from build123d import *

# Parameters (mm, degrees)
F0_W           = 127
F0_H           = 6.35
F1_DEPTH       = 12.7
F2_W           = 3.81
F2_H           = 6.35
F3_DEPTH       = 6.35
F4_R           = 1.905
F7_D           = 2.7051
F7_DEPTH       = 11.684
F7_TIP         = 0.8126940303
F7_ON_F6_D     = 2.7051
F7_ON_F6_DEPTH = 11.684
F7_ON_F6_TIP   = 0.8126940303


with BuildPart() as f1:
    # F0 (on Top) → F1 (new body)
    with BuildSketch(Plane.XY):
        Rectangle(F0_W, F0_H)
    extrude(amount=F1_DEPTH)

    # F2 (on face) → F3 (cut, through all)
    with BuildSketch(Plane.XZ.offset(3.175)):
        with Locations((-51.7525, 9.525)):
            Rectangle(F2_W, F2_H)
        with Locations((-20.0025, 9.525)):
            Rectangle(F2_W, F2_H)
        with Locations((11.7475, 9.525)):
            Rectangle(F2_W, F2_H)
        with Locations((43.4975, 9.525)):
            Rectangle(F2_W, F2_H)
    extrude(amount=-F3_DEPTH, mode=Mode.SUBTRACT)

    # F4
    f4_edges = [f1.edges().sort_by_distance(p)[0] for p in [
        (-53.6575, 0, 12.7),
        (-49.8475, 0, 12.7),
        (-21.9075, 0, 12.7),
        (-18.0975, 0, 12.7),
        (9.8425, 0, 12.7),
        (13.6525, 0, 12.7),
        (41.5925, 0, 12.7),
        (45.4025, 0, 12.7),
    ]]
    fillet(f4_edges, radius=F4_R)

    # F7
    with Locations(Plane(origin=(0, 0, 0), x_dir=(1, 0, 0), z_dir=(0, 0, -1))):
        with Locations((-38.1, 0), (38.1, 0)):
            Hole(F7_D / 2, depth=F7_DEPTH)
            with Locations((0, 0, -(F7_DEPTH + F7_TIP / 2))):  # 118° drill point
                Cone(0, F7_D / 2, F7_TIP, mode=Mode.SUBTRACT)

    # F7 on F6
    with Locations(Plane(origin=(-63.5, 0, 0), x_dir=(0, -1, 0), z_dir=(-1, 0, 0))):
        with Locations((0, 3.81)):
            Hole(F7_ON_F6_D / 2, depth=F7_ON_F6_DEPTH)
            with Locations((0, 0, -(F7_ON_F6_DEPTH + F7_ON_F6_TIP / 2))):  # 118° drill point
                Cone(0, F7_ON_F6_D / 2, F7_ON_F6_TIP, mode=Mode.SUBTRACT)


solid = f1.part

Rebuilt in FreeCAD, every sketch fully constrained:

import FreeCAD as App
import Part
import Sketcher

V = App.Vector
Q = App.Units.Quantity


def edges_at(feature, points):
    """Names of the edges that pass closest to the given points."""
    edges = feature.Shape.Edges
    near = lambda p: min(range(len(edges)), key=lambda i: edges[i].distToShape(Part.Vertex(*p))[0])
    return sorted({f"Edge{near(p) + 1}" for p in points})


def add_polygon(sketch, points):
    """Adds a closed chain of lines whose ends are joined by coincident constraints."""
    first, n = sketch.GeometryCount, len(points)
    for a, b in zip(points, points[1:] + points[:1]):
        sketch.addGeometry(Part.LineSegment(App.Vector(*a, 0), App.Vector(*b, 0)), False)
    for i in range(n):
        sketch.addConstraint(Sketcher.Constraint("Coincident", first + i, 2, first + (i + 1) % n, 1))

doc = App.newDocument("Part")
body = doc.addObject("PartDesign::Body", "Body")

# Sketch on XY plane
sketch1 = body.newObject("Sketcher::SketchObject", "Sketch")
sketch1.AttachmentSupport = (doc.getObject("XY_Plane"), [""])
sketch1.MapMode = "FlatFace"
add_polygon(sketch1, [(-63.5, 3.175), (-63.5, -3.175), (63.5, -3.175), (63.5, 3.175)])  # lines 0-3
sketch1.addConstraint([
    Sketcher.Constraint("Vertical", 0),
    Sketcher.Constraint("Horizontal", 1),
    Sketcher.Constraint("Vertical", 2),
    Sketcher.Constraint("Horizontal", 3),
    Sketcher.Constraint("Symmetric", 0, 2, 2, 2, -1, 1),
    Sketcher.Constraint("DistanceX", 1, 1, 1, 2, Q("5 in")),
    Sketcher.Constraint("DistanceY", 0, 2, 0, 1, Q("0.25 in")),
])
pad1 = body.newObject("PartDesign::Pad", "Pad")
pad1.Profile = sketch1
pad1.Length = Q("0.5 in")

# Sketch on XZ plane
sketch2 = body.newObject("Sketcher::SketchObject", "Sketch001")
sketch2.AttachmentSupport = (doc.getObject("XZ_Plane"), [""])
sketch2.MapMode = "FlatFace"
sketch2.AttachmentOffset = App.Placement(V(0, 0, 0.125 * 25.4), App.Rotation())
add_polygon(sketch2, [(-53.6575, 12.7), (-53.6575, 6.35), (-49.8475, 6.35), (-49.8475, 12.7)])  # lines 0-3
add_polygon(sketch2, [(-21.9075, 12.7), (-21.9075, 6.35), (-18.0975, 6.35), (-18.0975, 12.7)])  # lines 4-7
add_polygon(sketch2, [(9.8425, 12.7), (9.8425, 6.35), (13.6525, 6.35), (13.6525, 12.7)])  # lines 8-11
add_polygon(sketch2, [(41.5925, 12.7), (41.5925, 6.35), (45.4025, 6.35), (45.4025, 12.7)])  # lines 12-15
sketch2.addConstraint([
    Sketcher.Constraint("Vertical", 0),
    Sketcher.Constraint("Horizontal", 1),
    Sketcher.Constraint("Vertical", 2),
    Sketcher.Constraint("Horizontal", 3),
    Sketcher.Constraint("Vertical", 4),
    Sketcher.Constraint("Horizontal", 5),
    Sketcher.Constraint("Vertical", 6),
    Sketcher.Constraint("Horizontal", 7),
    Sketcher.Constraint("Vertical", 8),
    Sketcher.Constraint("Horizontal", 9),
    Sketcher.Constraint("Vertical", 10),
    Sketcher.Constraint("Horizontal", 11),
    Sketcher.Constraint("Vertical", 12),
    Sketcher.Constraint("Horizontal", 13),
    Sketcher.Constraint("Vertical", 14),
    Sketcher.Constraint("Horizontal", 15),
    Sketcher.Constraint("Horizontal", 1, 2, 4, 2),
    Sketcher.Constraint("Horizontal", 3, 2, 6, 2),
    Sketcher.Constraint("Horizontal", 5, 2, 8, 2),
    Sketcher.Constraint("Horizontal", 7, 2, 10, 2),
    Sketcher.Constraint("Horizontal", 9, 2, 12, 2),
    Sketcher.Constraint("Horizontal", 11, 2, 14, 2),
    Sketcher.Constraint("Equal", 3, 5),
    Sketcher.Constraint("Equal", 7, 9),
    Sketcher.Constraint("Equal", 11, 13),
    Sketcher.Constraint("DistanceX", 1, 1, 1, 2, Q("0.15 in")),
    Sketcher.Constraint("DistanceY", 0, 2, 0, 1, Q("0.25 in")),
    Sketcher.Constraint("DistanceY", -1, 1, 2, 2, Q("0.5 in")),
    Sketcher.Constraint("DistanceX", 1, 2, 4, 2, Q("1.1 in")),
    Sketcher.Constraint("DistanceX", 5, 2, 8, 2, Q("1.1 in")),
    Sketcher.Constraint("DistanceX", 9, 2, 12, 2, Q("1.1 in")),
    Sketcher.Constraint("DistanceX", 0, 2, -1, 1, Q("2.1125 in")),
])
pocket1 = body.newObject("PartDesign::Pocket", "Pocket")
pocket1.Profile = sketch2
pocket1.Type = "ThroughAll"
doc.recompute()

fillet = body.newObject("PartDesign::Fillet", "Fillet")
fillet.Base = (pocket1, edges_at(pocket1, [
    (-53.657, 0, 12.7),
    (-49.847, 0, 12.7),
    (-21.907, 0, 12.7),
    (-18.098, 0, 12.7),
    (9.842, 0, 12.7),
    (13.652, 0, 12.7),
    (41.593, 0, 12.7),
    (45.403, 0, 12.7),
]))
fillet.Radius = Q("0.075 in")

# Sketch on XY plane
sketch3 = body.newObject("Sketcher::SketchObject", "Sketch002")
sketch3.AttachmentSupport = (doc.getObject("XY_Plane"), [""])
sketch3.MapMode = "FlatFace"
sketch3.addGeometry([
    Part.Circle(V(-38.1, 0, 0), V(0, 0, 1), 1.35255),
    Part.Circle(V(38.1, 0, 0), V(0, 0, 1), 1.35255),
], False)
sketch3.addConstraint([
    Sketcher.Constraint("Equal", 0, 1),
    Sketcher.Constraint("Symmetric", 0, 3, 1, 3, -1, 1),
    Sketcher.Constraint("PointOnObject", 0, 3, -1),
    Sketcher.Constraint("DistanceX", 0, 3, 1, 3, Q("3 in")),
    Sketcher.Constraint("Diameter", 0, Q("0.1065 in")),
])
doc.recompute()
hole = body.newObject("PartDesign::Hole", "Hole")
hole.Profile = sketch3
hole.ThreadType = "None"
hole.Diameter = Q("0.1065 in")
hole.DepthType = "Dimension"
hole.Depth = Q("0.46 in")
hole.DrillPoint = "Angled"
hole.DrillPointAngle = 118
hole.Reversed = True

# Sketch on YZ plane
sketch4 = body.newObject("Sketcher::SketchObject", "Sketch003")
sketch4.AttachmentSupport = (doc.getObject("YZ_Plane"), [""])
sketch4.MapMode = "FlatFace"
sketch4.AttachmentOffset = App.Placement(V(0, 0, -2.5 * 25.4), App.Rotation())
sketch4.addGeometry(Part.Circle(V(0, 3.81, 0), V(0, 0, 1), 1.35255), False)
sketch4.addConstraint([
    Sketcher.Constraint("PointOnObject", 0, 3, -2),
    Sketcher.Constraint("Diameter", 0, Q("0.1065 in")),
    Sketcher.Constraint("DistanceY", -1, 1, 0, 3, Q("0.15 in")),
])
doc.recompute()
hole2 = body.newObject("PartDesign::Hole", "Hole001")
hole2.Profile = sketch4
hole2.ThreadType = "None"
hole2.Diameter = Q("0.1065 in")
hole2.DepthType = "Dimension"
hole2.Depth = Q("0.46 in")
hole2.DrillPoint = "Angled"
hole2.DrillPointAngle = 118
hole2.Reversed = True

doc.recompute()
